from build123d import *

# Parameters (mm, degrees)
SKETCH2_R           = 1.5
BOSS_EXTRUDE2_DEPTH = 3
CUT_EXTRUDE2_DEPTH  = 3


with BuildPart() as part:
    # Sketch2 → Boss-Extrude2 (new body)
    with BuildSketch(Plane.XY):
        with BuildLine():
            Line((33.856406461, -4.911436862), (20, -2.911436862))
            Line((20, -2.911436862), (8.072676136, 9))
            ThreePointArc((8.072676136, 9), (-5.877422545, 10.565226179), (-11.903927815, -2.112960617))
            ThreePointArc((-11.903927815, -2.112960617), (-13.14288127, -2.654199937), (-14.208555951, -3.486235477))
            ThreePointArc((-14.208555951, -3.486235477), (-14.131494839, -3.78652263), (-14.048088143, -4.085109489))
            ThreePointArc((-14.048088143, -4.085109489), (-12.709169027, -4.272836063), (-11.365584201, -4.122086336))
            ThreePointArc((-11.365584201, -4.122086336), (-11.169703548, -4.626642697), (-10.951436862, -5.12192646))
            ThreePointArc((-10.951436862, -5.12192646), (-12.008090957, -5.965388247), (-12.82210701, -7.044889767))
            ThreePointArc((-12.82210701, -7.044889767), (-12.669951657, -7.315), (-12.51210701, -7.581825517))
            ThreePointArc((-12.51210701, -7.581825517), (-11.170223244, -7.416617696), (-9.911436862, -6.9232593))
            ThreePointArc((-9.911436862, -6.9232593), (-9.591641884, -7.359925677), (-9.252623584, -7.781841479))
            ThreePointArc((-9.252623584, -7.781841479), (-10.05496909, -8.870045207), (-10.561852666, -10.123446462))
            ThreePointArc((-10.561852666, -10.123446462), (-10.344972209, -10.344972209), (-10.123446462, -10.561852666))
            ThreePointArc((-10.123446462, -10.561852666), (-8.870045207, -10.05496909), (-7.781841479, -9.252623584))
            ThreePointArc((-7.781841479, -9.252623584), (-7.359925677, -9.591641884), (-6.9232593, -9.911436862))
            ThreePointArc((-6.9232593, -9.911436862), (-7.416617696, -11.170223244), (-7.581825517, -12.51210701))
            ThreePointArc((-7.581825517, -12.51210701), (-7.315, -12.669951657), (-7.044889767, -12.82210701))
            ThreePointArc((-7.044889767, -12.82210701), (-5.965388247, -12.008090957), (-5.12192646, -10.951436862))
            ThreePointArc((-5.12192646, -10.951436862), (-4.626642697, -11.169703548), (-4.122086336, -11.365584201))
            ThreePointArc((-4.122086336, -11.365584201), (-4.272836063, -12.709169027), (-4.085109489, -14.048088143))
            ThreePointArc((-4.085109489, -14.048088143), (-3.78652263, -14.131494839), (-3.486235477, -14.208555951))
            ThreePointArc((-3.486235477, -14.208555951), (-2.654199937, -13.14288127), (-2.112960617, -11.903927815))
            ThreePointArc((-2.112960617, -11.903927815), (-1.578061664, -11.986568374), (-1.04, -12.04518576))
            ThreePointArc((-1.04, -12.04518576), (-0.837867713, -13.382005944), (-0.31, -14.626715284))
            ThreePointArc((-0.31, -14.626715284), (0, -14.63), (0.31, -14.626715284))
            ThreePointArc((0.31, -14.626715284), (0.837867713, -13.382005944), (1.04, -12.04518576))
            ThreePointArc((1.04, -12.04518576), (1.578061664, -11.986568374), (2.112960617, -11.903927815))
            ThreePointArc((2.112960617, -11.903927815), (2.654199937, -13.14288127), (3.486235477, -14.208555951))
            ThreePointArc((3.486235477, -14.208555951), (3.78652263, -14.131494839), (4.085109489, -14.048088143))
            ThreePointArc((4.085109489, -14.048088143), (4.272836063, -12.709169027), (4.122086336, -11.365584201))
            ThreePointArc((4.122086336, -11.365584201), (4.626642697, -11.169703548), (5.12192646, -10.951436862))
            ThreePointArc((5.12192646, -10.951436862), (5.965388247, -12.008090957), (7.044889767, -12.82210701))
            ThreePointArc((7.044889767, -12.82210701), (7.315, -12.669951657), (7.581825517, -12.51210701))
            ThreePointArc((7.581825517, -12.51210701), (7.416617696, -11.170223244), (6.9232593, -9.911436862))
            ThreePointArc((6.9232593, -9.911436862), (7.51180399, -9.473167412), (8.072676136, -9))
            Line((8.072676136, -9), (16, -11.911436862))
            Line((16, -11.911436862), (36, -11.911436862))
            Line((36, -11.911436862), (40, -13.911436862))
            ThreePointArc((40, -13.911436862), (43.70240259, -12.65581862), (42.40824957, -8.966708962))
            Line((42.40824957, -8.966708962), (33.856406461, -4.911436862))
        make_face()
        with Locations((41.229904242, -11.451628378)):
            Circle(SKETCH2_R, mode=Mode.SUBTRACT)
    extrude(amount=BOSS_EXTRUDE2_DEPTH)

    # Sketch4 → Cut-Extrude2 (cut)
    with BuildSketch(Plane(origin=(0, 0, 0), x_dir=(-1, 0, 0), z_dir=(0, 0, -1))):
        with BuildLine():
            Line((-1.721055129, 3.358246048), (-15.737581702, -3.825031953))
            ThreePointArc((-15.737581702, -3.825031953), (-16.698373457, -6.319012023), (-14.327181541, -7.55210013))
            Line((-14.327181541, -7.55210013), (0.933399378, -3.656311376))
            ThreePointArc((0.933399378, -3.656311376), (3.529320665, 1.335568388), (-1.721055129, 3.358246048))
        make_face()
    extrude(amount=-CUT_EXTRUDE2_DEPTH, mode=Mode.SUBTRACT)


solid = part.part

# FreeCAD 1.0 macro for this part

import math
import FreeCAD as App
import Part
import Sketcher
Q = App.Units.Quantity

doc = App.newDocument("Part")
body = doc.addObject("PartDesign::Body", "Body")

sketch1 = body.newObject("Sketcher::SketchObject", "Sketch")
sketch1.AttachmentSupport = (doc.getObject("XY_Plane"), [""])
sketch1.MapMode = "FlatFace"
sketch1.addGeometry([
    Part.LineSegment(App.Vector(33.856406, -4.911437, 0), App.Vector(20, -2.911437, 0)),
    Part.LineSegment(App.Vector(20, -2.911437, 0), App.Vector(8.072676, 9, 0)),
    Part.ArcOfCircle(Part.Circle(App.Vector(0, 0, 0), App.Vector(0, 0, 1), 12.09), math.radians(48.109037), math.radians(190.065232)),
    Part.ArcOfCircle(Part.Circle(App.Vector(-10.37868, -7.293078, 0), App.Vector(0, 0, 1), 5.4), math.radians(106.406676), math.radians(135.172806)),
    Part.ArcOfCircle(Part.Circle(App.Vector(0, 0, 0), App.Vector(0, 0, 1), 14.63), math.radians(-166.21415), math.radians(-163.78585)),
    Part.ArcOfCircle(Part.Circle(App.Vector(-12.63474, 1.126651, 0), App.Vector(0, 0, 1), 5.4), math.radians(-105.172806), math.radians(-76.406676)),
    Part.ArcOfCircle(Part.Circle(App.Vector(0, 0, 0), App.Vector(0, 0, 1), 12.09), math.radians(-160.065232), math.radians(-154.934768)),
    Part.ArcOfCircle(Part.Circle(App.Vector(-8.137448, -9.730773, 0), App.Vector(0, 0, 1), 5.4), math.radians(121.406676), math.radians(150.172806)),
    Part.ArcOfCircle(Part.Circle(App.Vector(0.000002, 0.000001, 0), App.Vector(0, 0, 1), 14.630002), math.radians(-151.21415), math.radians(-148.78585)),
    Part.ArcOfCircle(Part.Circle(App.Vector(-12.49582, -2.18185, 0), App.Vector(0, 0, 1), 5.4), math.radians(-90.172806), math.radians(-61.406676)),
    Part.ArcOfCircle(Part.Circle(App.Vector(0, 0, 0), App.Vector(0, 0, 1), 12.09), math.radians(-145.065232), math.radians(-139.934768)),
    Part.ArcOfCircle(Part.Circle(App.Vector(-5.341662, -11.505331, 0), App.Vector(0, 0, 1), 5.4), math.radians(136.406676), math.radians(165.172806)),
    Part.ArcOfCircle(Part.Circle(App.Vector(0, 0, 0), App.Vector(0, 0, 1), 14.63), math.radians(-136.21415), math.radians(-133.78585)),
    Part.ArcOfCircle(Part.Circle(App.Vector(-11.505331, -5.341662, 0), App.Vector(0, 0, 1), 5.4), math.radians(-75.172806), math.radians(-46.406676)),
    Part.ArcOfCircle(Part.Circle(App.Vector(0, 0, 0), App.Vector(0, 0, 1), 12.09), math.radians(-130.065232), math.radians(-124.934768)),
    Part.ArcOfCircle(Part.Circle(App.Vector(-2.18185, -12.49582, 0), App.Vector(0, 0, 1), 5.4), math.radians(151.406676), math.radians(180.172806)),
    Part.ArcOfCircle(Part.Circle(App.Vector(0.000001, 0.000002, 0), App.Vector(0, 0, 1), 14.630002), math.radians(-121.21415), math.radians(-118.78585)),
    Part.ArcOfCircle(Part.Circle(App.Vector(-9.730773, -8.137448, 0), App.Vector(0, 0, 1), 5.4), math.radians(-60.172806), math.radians(-31.406676)),
    Part.ArcOfCircle(Part.Circle(App.Vector(0, 0, 0), App.Vector(0, 0, 1), 12.09), math.radians(-115.065232), math.radians(-109.934768)),
    Part.ArcOfCircle(Part.Circle(App.Vector(1.126651, -12.63474, 0), App.Vector(0, 0, 1), 5.4), math.radians(166.406676), math.radians(195.172806)),
    Part.ArcOfCircle(Part.Circle(App.Vector(0, 0, 0), App.Vector(0, 0, 1), 14.63), math.radians(-106.21415), math.radians(-103.78585)),
    Part.ArcOfCircle(Part.Circle(App.Vector(-7.293078, -10.37868, 0), App.Vector(0, 0, 1), 5.4), math.radians(-45.172806), math.radians(-16.406676)),
    Part.ArcOfCircle(Part.Circle(App.Vector(0, 0, 0), App.Vector(0, 0, 1), 12.09), math.radians(-100.065232), math.radians(-94.934768)),
    Part.ArcOfCircle(Part.Circle(App.Vector(4.358373, -11.912623, 0), App.Vector(0, 0, 1), 5.4), math.radians(-178.593324), math.radians(-149.827194)),
    Part.ArcOfCircle(Part.Circle(App.Vector(0, 0, 0), App.Vector(0, 0, 1), 14.63), math.radians(-91.21415), math.radians(-88.78585)),
    Part.ArcOfCircle(Part.Circle(App.Vector(-4.358373, -11.912623, 0), App.Vector(0, 0, 1), 5.4), math.radians(-30.172806), math.radians(-1.406676)),
    Part.ArcOfCircle(Part.Circle(App.Vector(0, 0, 0), App.Vector(0, 0, 1), 12.09), math.radians(-85.065232), math.radians(-79.934768)),
    Part.ArcOfCircle(Part.Circle(App.Vector(7.293078, -10.37868, 0), App.Vector(0, 0, 1), 5.4), math.radians(-163.593324), math.radians(-134.827194)),
    Part.ArcOfCircle(Part.Circle(App.Vector(0, 0, 0), App.Vector(0, 0, 1), 14.63), math.radians(-76.21415), math.radians(-73.78585)),
    Part.ArcOfCircle(Part.Circle(App.Vector(-1.126651, -12.63474, 0), App.Vector(0, 0, 1), 5.4), math.radians(-15.172806), math.radians(13.593324)),
    Part.ArcOfCircle(Part.Circle(App.Vector(0, 0, 0), App.Vector(0, 0, 1), 12.09), math.radians(-70.065232), math.radians(-64.934768)),
    Part.ArcOfCircle(Part.Circle(App.Vector(9.730773, -8.137448, 0), App.Vector(0, 0, 1), 5.4), math.radians(-148.593324), math.radians(-119.827194)),
    Part.ArcOfCircle(Part.Circle(App.Vector(-0.000001, 0.000002, 0), App.Vector(0, 0, 1), 14.630002), math.radians(-61.21415), math.radians(-58.78585)),
    Part.ArcOfCircle(Part.Circle(App.Vector(2.18185, -12.49582, 0), App.Vector(0, 0, 1), 5.4), math.radians(-0.172806), math.radians(28.593324)),
    Part.ArcOfCircle(Part.Circle(App.Vector(0, 0, 0), App.Vector(0, 0, 1), 12.09), math.radians(-55.065232), math.radians(-48.109037)),
    Part.LineSegment(App.Vector(8.072676, -9, 0), App.Vector(16, -11.911437, 0)),
    Part.LineSegment(App.Vector(16, -11.911437, 0), App.Vector(36, -11.911437, 0)),
    Part.LineSegment(App.Vector(36, -11.911437, 0), App.Vector(40, -13.911437, 0)),
    Part.ArcOfCircle(Part.Circle(App.Vector(41.229904, -11.451628, 0), App.Vector(0, 0, 1), 2.750149), math.radians(-116.565051), math.radians(64.629757)),
    Part.LineSegment(App.Vector(42.40825, -8.966709, 0), App.Vector(33.856406, -4.911437, 0)),
    Part.Circle(App.Vector(41.229904, -11.451628, 0), App.Vector(0, 0, 1), 1.5),
], False)
sketch1.addConstraint([
    Sketcher.Constraint("Coincident", 0, 2, 1, 1),
    Sketcher.Constraint("Coincident", 1, 2, 2, 1),
    Sketcher.Constraint("Coincident", 2, 2, 3, 1),
    Sketcher.Constraint("Coincident", 3, 2, 4, 1),
    Sketcher.Constraint("Coincident", 4, 2, 5, 1),
    Sketcher.Constraint("Coincident", 5, 2, 6, 1),
    Sketcher.Constraint("Coincident", 6, 2, 7, 1),
    Sketcher.Constraint("Coincident", 7, 2, 8, 1),
    Sketcher.Constraint("Coincident", 8, 2, 9, 1),
    Sketcher.Constraint("Coincident", 9, 2, 10, 1),
    Sketcher.Constraint("Coincident", 10, 2, 11, 1),
    Sketcher.Constraint("Coincident", 11, 2, 12, 1),
    Sketcher.Constraint("Coincident", 12, 2, 13, 1),
    Sketcher.Constraint("Coincident", 13, 2, 14, 1),
    Sketcher.Constraint("Coincident", 14, 2, 15, 1),
    Sketcher.Constraint("Coincident", 15, 2, 16, 1),
    Sketcher.Constraint("Coincident", 16, 2, 17, 1),
    Sketcher.Constraint("Coincident", 17, 2, 18, 1),
    Sketcher.Constraint("Coincident", 18, 2, 19, 1),
    Sketcher.Constraint("Coincident", 19, 2, 20, 1),
    Sketcher.Constraint("Coincident", 20, 2, 21, 1),
    Sketcher.Constraint("Coincident", 21, 2, 22, 1),
    Sketcher.Constraint("Coincident", 22, 2, 23, 1),
    Sketcher.Constraint("Coincident", 23, 2, 24, 1),
    Sketcher.Constraint("Coincident", 24, 2, 25, 1),
    Sketcher.Constraint("Coincident", 25, 2, 26, 1),
    Sketcher.Constraint("Coincident", 26, 2, 27, 1),
    Sketcher.Constraint("Coincident", 27, 2, 28, 1),
    Sketcher.Constraint("Coincident", 28, 2, 29, 1),
    Sketcher.Constraint("Coincident", 29, 2, 30, 1),
    Sketcher.Constraint("Coincident", 30, 2, 31, 1),
    Sketcher.Constraint("Coincident", 31, 2, 32, 1),
    Sketcher.Constraint("Coincident", 32, 2, 33, 1),
    Sketcher.Constraint("Coincident", 33, 2, 34, 1),
    Sketcher.Constraint("Coincident", 34, 2, 35, 1),
    Sketcher.Constraint("Coincident", 35, 2, 36, 1),
    Sketcher.Constraint("Coincident", 36, 2, 37, 1),
    Sketcher.Constraint("Tangent", 37, 2, 38, 1),
    Sketcher.Constraint("Tangent", 38, 2, 39, 1),
    Sketcher.Constraint("Coincident", 39, 2, 0, 1),
    Sketcher.Constraint("Horizontal", 36),
    Sketcher.Constraint("Coincident", 2, 3, -1, 1),
    Sketcher.Constraint("Coincident", 4, 3, -1, 1),
    Sketcher.Constraint("Coincident", 6, 3, -1, 1),
    Sketcher.Constraint("Coincident", 8, 3, -1, 1),
    Sketcher.Constraint("Coincident", 10, 3, -1, 1),
    Sketcher.Constraint("Coincident", 12, 3, -1, 1),
    Sketcher.Constraint("Coincident", 14, 3, -1, 1),
    Sketcher.Constraint("Coincident", 16, 3, -1, 1),
    Sketcher.Constraint("Coincident", 18, 3, -1, 1),
    Sketcher.Constraint("Coincident", 20, 3, -1, 1),
    Sketcher.Constraint("Coincident", 22, 3, -1, 1),
    Sketcher.Constraint("Coincident", 24, 3, -1, 1),
    Sketcher.Constraint("Coincident", 26, 3, -1, 1),
    Sketcher.Constraint("Coincident", 28, 3, -1, 1),
    Sketcher.Constraint("Coincident", 30, 3, -1, 1),
    Sketcher.Constraint("Coincident", 32, 3, -1, 1),
    Sketcher.Constraint("Coincident", 34, 3, -1, 1),
    Sketcher.Constraint("Coincident", 40, 3, 38, 3),
    Sketcher.Constraint("Equal", 3, 5),
    Sketcher.Constraint("Equal", 2, 6),
    Sketcher.Constraint("Equal", 5, 7),
    Sketcher.Constraint("Equal", 4, 8),
    Sketcher.Constraint("Equal", 7, 9),
    Sketcher.Constraint("Equal", 6, 10),
    Sketcher.Constraint("Equal", 9, 11),
    Sketcher.Constraint("Equal", 4, 12),
    Sketcher.Constraint("Equal", 11, 13),
    Sketcher.Constraint("Equal", 10, 14),
    Sketcher.Constraint("Equal", 13, 15),
    Sketcher.Constraint("Equal", 8, 16),
    Sketcher.Constraint("Equal", 15, 17),
    Sketcher.Constraint("Equal", 14, 18),
    Sketcher.Constraint("Equal", 17, 19),
    Sketcher.Constraint("Equal", 16, 20),
    Sketcher.Constraint("Equal", 19, 21),
    Sketcher.Constraint("Equal", 18, 22),
    Sketcher.Constraint("Equal", 21, 23),
    Sketcher.Constraint("Equal", 20, 24),
    Sketcher.Constraint("Equal", 23, 25),
    Sketcher.Constraint("Equal", 22, 26),
    Sketcher.Constraint("Equal", 25, 27),
    Sketcher.Constraint("Equal", 24, 28),
    Sketcher.Constraint("Equal", 27, 29),
    Sketcher.Constraint("Equal", 26, 30),
    Sketcher.Constraint("Equal", 29, 31),
    Sketcher.Constraint("Equal", 28, 32),
    Sketcher.Constraint("Equal", 31, 33),
    Sketcher.Constraint("Equal", 30, 34),
    Sketcher.Constraint("Symmetric", 23, 3, 25, 3, -2),
    Sketcher.Constraint("Symmetric", 21, 3, 27, 3, -2),
    Sketcher.Constraint("Symmetric", 19, 3, 29, 3, -2),
    Sketcher.Constraint("Symmetric", 17, 3, 31, 3, -2),
    Sketcher.Constraint("Symmetric", 15, 3, 33, 3, -2),
    Sketcher.Constraint("Vertical", 1, 2, 34, 2),
    Sketcher.Constraint("Diameter", 40, Q("3 mm")),
    Sketcher.Constraint("Radius", 3, Q("5.4 mm")),
    Sketcher.Constraint("DistanceX", 36, 1, 36, 2, Q("20 mm")),
    Sketcher.Constraint("Radius", 2, Q("12.09 mm")),
    Sketcher.Constraint("Radius", 4, Q("14.63 mm")),
    Sketcher.Constraint("Distance", 0, Q("14 mm")),
    Sketcher.Constraint("DistanceX", -1, 1, 0, 2, Q("20 mm")),
    Sketcher.Constraint("DistanceY", -1, 1, 1, 2, Q("9 mm")),
    Sketcher.Constraint("DistanceX", -1, 1, 35, 2, Q("16 mm")),
    Sketcher.Constraint("DistanceX", -1, 1, 37, 2, Q("40 mm")),
    Sketcher.Constraint("DistanceX", 22, 2, -1, 1, Q("1.04 mm")),
    Sketcher.Constraint("DistanceX", 23, 2, -1, 1, Q("0.31 mm")),
    Sketcher.Constraint("Radius", 38, Q("2.750149 mm")),
    Sketcher.Constraint("Distance", 39, Q("9.464632 mm")),
    Sketcher.Constraint("DistanceX", 3, 3, -1, 1, Q("10.37868 mm")),
    Sketcher.Constraint("DistanceY", 3, 3, -1, 1, Q("7.293078 mm")),
    Sketcher.Constraint("DistanceX", 5, 3, -1, 1, Q("12.63474 mm")),
    Sketcher.Constraint("DistanceY", -1, 1, 5, 3, Q("1.126651 mm")),
    Sketcher.Constraint("DistanceX", 9, 3, -1, 1, Q("12.49582 mm")),
    Sketcher.Constraint("DistanceY", 9, 3, -1, 1, Q("2.18185 mm")),
    Sketcher.Constraint("DistanceX", 11, 3, -1, 1, Q("5.341662 mm")),
    Sketcher.Constraint("DistanceY", 11, 3, -1, 1, Q("11.505331 mm")),
    Sketcher.Constraint("DistanceX", 13, 3, -1, 1, Q("11.505331 mm")),
    Sketcher.Constraint("DistanceY", 13, 3, -1, 1, Q("5.341662 mm")),
    Sketcher.Constraint("DistanceX", 15, 3, -1, 1, Q("2.18185 mm")),
    Sketcher.Constraint("DistanceY", 15, 3, -1, 1, Q("12.49582 mm")),
    Sketcher.Constraint("DistanceX", -1, 1, 19, 3, Q("1.126651 mm")),
    Sketcher.Constraint("DistanceY", 19, 3, -1, 1, Q("12.63474 mm")),
    Sketcher.Constraint("DistanceX", 21, 3, -1, 1, Q("7.293078 mm")),
    Sketcher.Constraint("DistanceY", 21, 3, -1, 1, Q("10.37868 mm")),
    Sketcher.Constraint("DistanceY", 38, 3, -1, 1, Q("11.451628 mm")),
    Sketcher.Constraint("DistanceY", 7, 2, -1, 1, Q("7.04489 mm")),
    Sketcher.Constraint("DistanceX", 16, 2, -1, 1, Q("7.04489 mm")),
    Sketcher.Constraint("DistanceX", -1, 1, 38, 2, Q("42.40825 mm")),
    Sketcher.Constraint("DistanceY", 38, 2, -1, 1, Q("8.966709 mm")),
    Sketcher.Constraint("DistanceX", 7, 3, -1, 1, Q("8.137448 mm")),
    Sketcher.Constraint("DistanceX", 17, 3, -1, 1, Q("9.730773 mm")),
])
pad1 = body.newObject("PartDesign::Pad", "Pad")
pad1.Profile = sketch1
pad1.Length = 3

sketch2 = body.newObject("Sketcher::SketchObject", "Sketch001")
sketch2.AttachmentSupport = (doc.getObject("XY_Plane"), [""])
sketch2.MapMode = "FlatFace"
sketch2.addGeometry([
    Part.LineSegment(App.Vector(1.721055, 3.358246, 0), App.Vector(15.737582, -3.825032, 0)),
    Part.ArcOfCircle(Part.Circle(App.Vector(14.823128, -5.60938, 0), App.Vector(0, 0, 1), 2.005025), math.radians(-104.320853), math.radians(62.865482)),
    Part.LineSegment(App.Vector(14.327182, -7.5521, 0), App.Vector(-0.933399, -3.656311, 0)),
    Part.ArcOfCircle(Part.Circle(App.Vector(0, 0, 0), App.Vector(0, 0, 1), 3.773572), math.radians(62.865482), math.radians(255.679147)),
], False)
sketch2.addConstraint([
    Sketcher.Constraint("Tangent", 0, 2, 1, 2),
    Sketcher.Constraint("Tangent", 1, 1, 2, 1),
    Sketcher.Constraint("Tangent", 2, 2, 3, 2),
    Sketcher.Constraint("Tangent", 3, 1, 0, 1),
    Sketcher.Constraint("Coincident", 3, 3, -1, 1),
    Sketcher.Constraint("Distance", 0, Q("15.75 mm")),
    Sketcher.Constraint("Radius", 1, Q("2.005025 mm")),
    Sketcher.Constraint("Radius", 3, Q("3.773572 mm")),
    Sketcher.Constraint("DistanceY", 1, 1, -1, 1, Q("7.5521 mm")),
])
pocket1 = body.newObject("PartDesign::Pocket", "Pocket")
pocket1.Profile = sketch2
pocket1.Length = 3
pocket1.Reversed = True

doc.recompute()
